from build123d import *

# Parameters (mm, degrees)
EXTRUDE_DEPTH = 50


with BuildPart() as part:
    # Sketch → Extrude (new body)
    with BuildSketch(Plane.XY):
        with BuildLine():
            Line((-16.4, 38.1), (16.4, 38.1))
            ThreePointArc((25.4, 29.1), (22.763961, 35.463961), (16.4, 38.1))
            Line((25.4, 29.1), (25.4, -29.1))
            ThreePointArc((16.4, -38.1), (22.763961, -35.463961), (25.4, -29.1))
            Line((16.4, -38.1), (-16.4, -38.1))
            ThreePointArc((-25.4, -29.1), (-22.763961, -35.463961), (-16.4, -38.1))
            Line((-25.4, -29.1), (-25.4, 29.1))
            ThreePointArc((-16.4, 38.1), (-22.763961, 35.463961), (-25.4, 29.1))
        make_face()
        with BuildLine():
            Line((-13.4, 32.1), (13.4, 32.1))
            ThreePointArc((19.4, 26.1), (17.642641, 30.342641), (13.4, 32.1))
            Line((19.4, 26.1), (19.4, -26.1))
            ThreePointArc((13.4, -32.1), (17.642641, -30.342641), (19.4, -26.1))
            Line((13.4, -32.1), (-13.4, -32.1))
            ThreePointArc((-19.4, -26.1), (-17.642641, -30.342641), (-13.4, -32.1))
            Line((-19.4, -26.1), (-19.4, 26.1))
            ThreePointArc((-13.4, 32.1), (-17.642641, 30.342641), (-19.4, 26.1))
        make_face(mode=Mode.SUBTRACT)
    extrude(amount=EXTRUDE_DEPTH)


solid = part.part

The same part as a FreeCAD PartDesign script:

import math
import FreeCAD as App
import Part
import Sketcher

V = App.Vector

doc = App.newDocument("Part")
body = doc.addObject("PartDesign::Body", "Body")

# Sketch on XY plane
sketch1 = doc.addObject("Sketcher::SketchObject", "Sketch")
body.addObject(sketch1)
sketch1.AttachmentSupport = (doc.XY_Plane, [""])
sketch1.MapMode = "FlatFace"
sketch1.addGeometry([
    Part.LineSegment(V(16, 38, 0), V(-16, 38, 0)),  # 0
    Part.ArcOfCircle(Part.Circle(V(-16, 29, 0), V(0, 0, 1), 9), math.radians(90), math.radians(180)),  # 1
    Part.LineSegment(V(-25, 29, 0), V(-25, -29, 0)),  # 2
    Part.ArcOfCircle(Part.Circle(V(-16, -29, 0), V(0, 0, 1), 9), math.radians(-180), math.radians(-90)),  # 3
    Part.LineSegment(V(-16, -38, 0), V(16, -38, 0)),  # 4
    Part.ArcOfCircle(Part.Circle(V(16, -29, 0), V(0, 0, 1), 9), math.radians(-90), math.radians(0)),  # 5
    Part.LineSegment(V(25, -29, 0), V(25, 29, 0)),  # 6
    Part.ArcOfCircle(Part.Circle(V(16, 29, 0), V(0, 0, 1), 9), math.radians(0), math.radians(90)),  # 7
    Part.LineSegment(V(-13, 32, 0), V(13, 32, 0)),  # 8
    Part.ArcOfCircle(Part.Circle(V(13, 26, 0), V(0, 0, 1), 6), math.radians(0), math.radians(90)),  # 9
    Part.LineSegment(V(19, 26, 0), V(19, -26, 0)),  # 10
    Part.ArcOfCircle(Part.Circle(V(13, -26, 0), V(0, 0, 1), 6), math.radians(-90), math.radians(0)),  # 11
    Part.LineSegment(V(13, -32, 0), V(-13, -32, 0)),  # 12
    Part.ArcOfCircle(Part.Circle(V(-13, -26, 0), V(0, 0, 1), 6), math.radians(180), math.radians(270)),  # 13
    Part.LineSegment(V(-19, -26, 0), V(-19, 26, 0)),  # 14
    Part.ArcOfCircle(Part.Circle(V(-13, 26, 0), V(0, 0, 1), 6), math.radians(90), math.radians(180)),  # 15
], False)
sketch1.addConstraint([
    Sketcher.Constraint("Tangent", 0, 2, 1, 1),
    Sketcher.Constraint("Tangent", 1, 2, 2, 1),
    Sketcher.Constraint("Tangent", 2, 2, 3, 1),
    Sketcher.Constraint("Tangent", 3, 2, 4, 1),
    Sketcher.Constraint("Tangent", 4, 2, 5, 1),
    Sketcher.Constraint("Tangent", 5, 2, 6, 1),
    Sketcher.Constraint("Tangent", 6, 2, 7, 1),
    Sketcher.Constraint("Tangent", 7, 2, 0, 1),
    Sketcher.Constraint("Tangent", 8, 2, 9, 2),
    Sketcher.Constraint("Tangent", 9, 1, 10, 1),
    Sketcher.Constraint("Tangent", 10, 2, 11, 2),
    Sketcher.Constraint("Tangent", 11, 1, 12, 1),
    Sketcher.Constraint("Tangent", 12, 2, 13, 2),
    Sketcher.Constraint("Tangent", 13, 1, 14, 1),
    Sketcher.Constraint("Tangent", 14, 2, 15, 2),
    Sketcher.Constraint("Tangent", 15, 1, 8, 1),
    Sketcher.Constraint("Horizontal", 0),
    Sketcher.Constraint("Vertical", 2),
    Sketcher.Constraint("Horizontal", 4),
    Sketcher.Constraint("Vertical", 6),
    Sketcher.Constraint("Horizontal", 8),
    Sketcher.Constraint("Vertical", 10),
    Sketcher.Constraint("Horizontal", 12),
    Sketcher.Constraint("Vertical", 14),
    Sketcher.Constraint("Equal", 1, 3),
    Sketcher.Constraint("Equal", 3, 5),
    Sketcher.Constraint("Equal", 5, 7),
    Sketcher.Constraint("Equal", 9, 11),
    Sketcher.Constraint("Equal", 11, 13),
    Sketcher.Constraint("Equal", 13, 15),
    Sketcher.Constraint("Symmetric", 1, 3, 5, 3, -1, 1),
    Sketcher.Constraint("Symmetric", 9, 3, 13, 3, -1, 1),
    Sketcher.Constraint("Radius", 1, 9.0),
    Sketcher.Constraint("Radius", 9, 5.999999),
    Sketcher.Constraint("DistanceX", 0, 2, 0, 1, 32.8),
    Sketcher.Constraint("DistanceX", 8, 1, 8, 2, 26.8),
    Sketcher.Constraint("DistanceY", 2, 2, 2, 1, 58.2),
    Sketcher.Constraint("DistanceY", 10, 2, 10, 1, 52.2),
])
pad1 = doc.addObject("PartDesign::Pad", "Pad")
body.addObject(pad1)
pad1.Profile = sketch1
pad1.Length = 50

doc.recompute()
